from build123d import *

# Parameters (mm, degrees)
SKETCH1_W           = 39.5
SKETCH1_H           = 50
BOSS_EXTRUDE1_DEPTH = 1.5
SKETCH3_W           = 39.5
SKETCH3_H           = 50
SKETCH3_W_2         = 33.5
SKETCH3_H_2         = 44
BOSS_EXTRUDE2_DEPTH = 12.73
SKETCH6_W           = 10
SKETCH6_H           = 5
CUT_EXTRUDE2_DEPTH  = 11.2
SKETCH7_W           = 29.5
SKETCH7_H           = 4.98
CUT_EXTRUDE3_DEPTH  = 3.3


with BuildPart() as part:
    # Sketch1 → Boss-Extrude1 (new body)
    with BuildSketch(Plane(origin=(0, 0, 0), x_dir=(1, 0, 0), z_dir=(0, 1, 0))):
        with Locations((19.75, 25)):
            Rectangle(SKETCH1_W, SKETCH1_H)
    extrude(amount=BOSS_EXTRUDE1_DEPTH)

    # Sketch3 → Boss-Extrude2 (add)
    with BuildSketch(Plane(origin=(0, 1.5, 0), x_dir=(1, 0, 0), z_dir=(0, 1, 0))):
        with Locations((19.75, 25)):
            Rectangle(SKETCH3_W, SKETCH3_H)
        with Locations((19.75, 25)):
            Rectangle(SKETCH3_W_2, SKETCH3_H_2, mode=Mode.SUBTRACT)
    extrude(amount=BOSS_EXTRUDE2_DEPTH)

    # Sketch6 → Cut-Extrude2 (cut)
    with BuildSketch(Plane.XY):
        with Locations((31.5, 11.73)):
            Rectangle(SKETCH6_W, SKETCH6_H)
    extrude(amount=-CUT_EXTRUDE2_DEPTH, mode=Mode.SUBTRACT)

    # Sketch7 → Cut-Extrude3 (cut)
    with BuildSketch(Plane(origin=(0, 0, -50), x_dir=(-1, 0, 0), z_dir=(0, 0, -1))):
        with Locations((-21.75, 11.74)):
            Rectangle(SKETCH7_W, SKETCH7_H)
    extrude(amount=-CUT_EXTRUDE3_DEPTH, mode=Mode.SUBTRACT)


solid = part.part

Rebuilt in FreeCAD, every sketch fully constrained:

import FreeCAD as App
import Part
import Sketcher
from FreeCAD import Vector


def add_polygon(sketch, points):
    """Adds a closed chain of lines whose ends are joined by coincident constraints."""
    first, n = sketch.GeometryCount, len(points)
    for a, b in zip(points, points[1:] + points[:1]):
        sketch.addGeometry(Part.LineSegment(App.Vector(*a, 0), App.Vector(*b, 0)), False)
    for i in range(n):
        sketch.addConstraint(Sketcher.Constraint("Coincident", first + i, 2, first + (i + 1) % n, 1))

doc = App.newDocument("Part")
body = doc.addObject("PartDesign::Body", "Body")

sketch1 = body.newObject("Sketcher::SketchObject", "Sketch")
sketch1.AttachmentSupport = (doc.getObject("XZ_Plane"), [""])
sketch1.MapMode = "FlatFace"
add_polygon(sketch1, [(0, -50), (0, 0), (39.5, 0), (39.5, -50)])
sketch1.addConstraint(Sketcher.Constraint("Vertical", 0))
sketch1.addConstraint(Sketcher.Constraint("Horizontal", 1))
sketch1.addConstraint(Sketcher.Constraint("Vertical", 2))
sketch1.addConstraint(Sketcher.Constraint("Horizontal", 3))
sketch1.addConstraint(Sketcher.Constraint("Coincident", 0, 2, -1, 1))
sketch1.addConstraint(Sketcher.Constraint("DistanceY", 0, 1, 0, 2, 50.0))
sketch1.addConstraint(Sketcher.Constraint("DistanceX", 1, 1, 1, 2, 39.5))
pad1 = body.newObject("PartDesign::Pad", "Pad")
pad1.Profile = sketch1
pad1.Length = 1.5
pad1.Reversed = True

sketch2 = body.newObject("Sketcher::SketchObject", "Sketch001")
sketch2.AttachmentSupport = (doc.getObject("XZ_Plane"), [""])
sketch2.MapMode = "FlatFace"
sketch2.AttachmentOffset = App.Placement(Vector(0, 0, -1.5), App.Rotation())
add_polygon(sketch2, [(0, -50), (0, 0), (39.5, 0), (39.5, -50)])
add_polygon(sketch2, [(36.5, -3), (3, -3), (3, -47), (36.5, -47)])
sketch2.addConstraint(Sketcher.Constraint("Vertical", 0))
sketch2.addConstraint(Sketcher.Constraint("Horizontal", 1))
sketch2.addConstraint(Sketcher.Constraint("Vertical", 2))
sketch2.addConstraint(Sketcher.Constraint("Horizontal", 3))
sketch2.addConstraint(Sketcher.Constraint("Horizontal", 4))
sketch2.addConstraint(Sketcher.Constraint("Vertical", 5))
sketch2.addConstraint(Sketcher.Constraint("Horizontal", 6))
sketch2.addConstraint(Sketcher.Constraint("Vertical", 7))
sketch2.addConstraint(Sketcher.Constraint("Coincident", 0, 2, -1, 1))
sketch2.addConstraint(Sketcher.Constraint("DistanceY", 0, 1, 0, 2, 50.0))
sketch2.addConstraint(Sketcher.Constraint("DistanceY", 5, 2, 5, 1, 44.0))
sketch2.addConstraint(Sketcher.Constraint("DistanceX", 1, 1, 1, 2, 39.5))
sketch2.addConstraint(Sketcher.Constraint("DistanceX", 4, 2, 4, 1, 33.5))
sketch2.addConstraint(Sketcher.Constraint("DistanceX", -1, 1, 4, 2, 3.0))
sketch2.addConstraint(Sketcher.Constraint("DistanceY", 4, 2, -1, 1, 3.0))
pad2 = body.newObject("PartDesign::Pad", "Pad001")
pad2.Profile = sketch2
pad2.Length = 12.73
pad2.Reversed = True

sketch3 = body.newObject("Sketcher::SketchObject", "Sketch002")
sketch3.AttachmentSupport = (doc.getObject("XY_Plane"), [""])
sketch3.MapMode = "FlatFace"
add_polygon(sketch3, [(26.5, 14.23), (26.5, 9.23), (36.5, 9.23), (36.5, 14.23)])
sketch3.addConstraint(Sketcher.Constraint("Vertical", 0))
sketch3.addConstraint(Sketcher.Constraint("Horizontal", 1))
sketch3.addConstraint(Sketcher.Constraint("Vertical", 2))
sketch3.addConstraint(Sketcher.Constraint("Horizontal", 3))
sketch3.addConstraint(Sketcher.Constraint("DistanceX", 1, 1, 1, 2, 10.0))
sketch3.addConstraint(Sketcher.Constraint("DistanceY", 0, 2, 0, 1, 5.0))
sketch3.addConstraint(Sketcher.Constraint("DistanceX", -1, 1, 0, 2, 26.5))
sketch3.addConstraint(Sketcher.Constraint("DistanceY", -1, 1, 0, 2, 9.23))
pocket1 = body.newObject("PartDesign::Pocket", "Pocket")
pocket1.Profile = sketch3
pocket1.Length = 11.2

sketch4 = body.newObject("Sketcher::SketchObject", "Sketch003")
sketch4.AttachmentSupport = (doc.getObject("XY_Plane"), [""])
sketch4.MapMode = "FlatFace"
sketch4.AttachmentOffset = App.Placement(Vector(0, 0, -50), App.Rotation())
add_polygon(sketch4, [(36.5, 14.23), (36.5, 9.25), (7, 9.25), (7, 14.23)])
sketch4.addConstraint(Sketcher.Constraint("Vertical", 0))
sketch4.addConstraint(Sketcher.Constraint("Horizontal", 1))
sketch4.addConstraint(Sketcher.Constraint("Vertical", 2))
sketch4.addConstraint(Sketcher.Constraint("Horizontal", 3))
sketch4.addConstraint(Sketcher.Constraint("DistanceX", 1, 2, 1, 1, 29.5))
sketch4.addConstraint(Sketcher.Constraint("DistanceX", -1, 1, 1, 2, 7.0))
sketch4.addConstraint(Sketcher.Constraint("DistanceY", 0, 2, 0, 1, 4.98))
sketch4.addConstraint(Sketcher.Constraint("DistanceY", -1, 1, 0, 2, 9.25))
pocket2 = body.newObject("PartDesign::Pocket", "Pocket001")
pocket2.Profile = sketch4
pocket2.Length = 3.3
pocket2.Reversed = True

doc.recompute()
